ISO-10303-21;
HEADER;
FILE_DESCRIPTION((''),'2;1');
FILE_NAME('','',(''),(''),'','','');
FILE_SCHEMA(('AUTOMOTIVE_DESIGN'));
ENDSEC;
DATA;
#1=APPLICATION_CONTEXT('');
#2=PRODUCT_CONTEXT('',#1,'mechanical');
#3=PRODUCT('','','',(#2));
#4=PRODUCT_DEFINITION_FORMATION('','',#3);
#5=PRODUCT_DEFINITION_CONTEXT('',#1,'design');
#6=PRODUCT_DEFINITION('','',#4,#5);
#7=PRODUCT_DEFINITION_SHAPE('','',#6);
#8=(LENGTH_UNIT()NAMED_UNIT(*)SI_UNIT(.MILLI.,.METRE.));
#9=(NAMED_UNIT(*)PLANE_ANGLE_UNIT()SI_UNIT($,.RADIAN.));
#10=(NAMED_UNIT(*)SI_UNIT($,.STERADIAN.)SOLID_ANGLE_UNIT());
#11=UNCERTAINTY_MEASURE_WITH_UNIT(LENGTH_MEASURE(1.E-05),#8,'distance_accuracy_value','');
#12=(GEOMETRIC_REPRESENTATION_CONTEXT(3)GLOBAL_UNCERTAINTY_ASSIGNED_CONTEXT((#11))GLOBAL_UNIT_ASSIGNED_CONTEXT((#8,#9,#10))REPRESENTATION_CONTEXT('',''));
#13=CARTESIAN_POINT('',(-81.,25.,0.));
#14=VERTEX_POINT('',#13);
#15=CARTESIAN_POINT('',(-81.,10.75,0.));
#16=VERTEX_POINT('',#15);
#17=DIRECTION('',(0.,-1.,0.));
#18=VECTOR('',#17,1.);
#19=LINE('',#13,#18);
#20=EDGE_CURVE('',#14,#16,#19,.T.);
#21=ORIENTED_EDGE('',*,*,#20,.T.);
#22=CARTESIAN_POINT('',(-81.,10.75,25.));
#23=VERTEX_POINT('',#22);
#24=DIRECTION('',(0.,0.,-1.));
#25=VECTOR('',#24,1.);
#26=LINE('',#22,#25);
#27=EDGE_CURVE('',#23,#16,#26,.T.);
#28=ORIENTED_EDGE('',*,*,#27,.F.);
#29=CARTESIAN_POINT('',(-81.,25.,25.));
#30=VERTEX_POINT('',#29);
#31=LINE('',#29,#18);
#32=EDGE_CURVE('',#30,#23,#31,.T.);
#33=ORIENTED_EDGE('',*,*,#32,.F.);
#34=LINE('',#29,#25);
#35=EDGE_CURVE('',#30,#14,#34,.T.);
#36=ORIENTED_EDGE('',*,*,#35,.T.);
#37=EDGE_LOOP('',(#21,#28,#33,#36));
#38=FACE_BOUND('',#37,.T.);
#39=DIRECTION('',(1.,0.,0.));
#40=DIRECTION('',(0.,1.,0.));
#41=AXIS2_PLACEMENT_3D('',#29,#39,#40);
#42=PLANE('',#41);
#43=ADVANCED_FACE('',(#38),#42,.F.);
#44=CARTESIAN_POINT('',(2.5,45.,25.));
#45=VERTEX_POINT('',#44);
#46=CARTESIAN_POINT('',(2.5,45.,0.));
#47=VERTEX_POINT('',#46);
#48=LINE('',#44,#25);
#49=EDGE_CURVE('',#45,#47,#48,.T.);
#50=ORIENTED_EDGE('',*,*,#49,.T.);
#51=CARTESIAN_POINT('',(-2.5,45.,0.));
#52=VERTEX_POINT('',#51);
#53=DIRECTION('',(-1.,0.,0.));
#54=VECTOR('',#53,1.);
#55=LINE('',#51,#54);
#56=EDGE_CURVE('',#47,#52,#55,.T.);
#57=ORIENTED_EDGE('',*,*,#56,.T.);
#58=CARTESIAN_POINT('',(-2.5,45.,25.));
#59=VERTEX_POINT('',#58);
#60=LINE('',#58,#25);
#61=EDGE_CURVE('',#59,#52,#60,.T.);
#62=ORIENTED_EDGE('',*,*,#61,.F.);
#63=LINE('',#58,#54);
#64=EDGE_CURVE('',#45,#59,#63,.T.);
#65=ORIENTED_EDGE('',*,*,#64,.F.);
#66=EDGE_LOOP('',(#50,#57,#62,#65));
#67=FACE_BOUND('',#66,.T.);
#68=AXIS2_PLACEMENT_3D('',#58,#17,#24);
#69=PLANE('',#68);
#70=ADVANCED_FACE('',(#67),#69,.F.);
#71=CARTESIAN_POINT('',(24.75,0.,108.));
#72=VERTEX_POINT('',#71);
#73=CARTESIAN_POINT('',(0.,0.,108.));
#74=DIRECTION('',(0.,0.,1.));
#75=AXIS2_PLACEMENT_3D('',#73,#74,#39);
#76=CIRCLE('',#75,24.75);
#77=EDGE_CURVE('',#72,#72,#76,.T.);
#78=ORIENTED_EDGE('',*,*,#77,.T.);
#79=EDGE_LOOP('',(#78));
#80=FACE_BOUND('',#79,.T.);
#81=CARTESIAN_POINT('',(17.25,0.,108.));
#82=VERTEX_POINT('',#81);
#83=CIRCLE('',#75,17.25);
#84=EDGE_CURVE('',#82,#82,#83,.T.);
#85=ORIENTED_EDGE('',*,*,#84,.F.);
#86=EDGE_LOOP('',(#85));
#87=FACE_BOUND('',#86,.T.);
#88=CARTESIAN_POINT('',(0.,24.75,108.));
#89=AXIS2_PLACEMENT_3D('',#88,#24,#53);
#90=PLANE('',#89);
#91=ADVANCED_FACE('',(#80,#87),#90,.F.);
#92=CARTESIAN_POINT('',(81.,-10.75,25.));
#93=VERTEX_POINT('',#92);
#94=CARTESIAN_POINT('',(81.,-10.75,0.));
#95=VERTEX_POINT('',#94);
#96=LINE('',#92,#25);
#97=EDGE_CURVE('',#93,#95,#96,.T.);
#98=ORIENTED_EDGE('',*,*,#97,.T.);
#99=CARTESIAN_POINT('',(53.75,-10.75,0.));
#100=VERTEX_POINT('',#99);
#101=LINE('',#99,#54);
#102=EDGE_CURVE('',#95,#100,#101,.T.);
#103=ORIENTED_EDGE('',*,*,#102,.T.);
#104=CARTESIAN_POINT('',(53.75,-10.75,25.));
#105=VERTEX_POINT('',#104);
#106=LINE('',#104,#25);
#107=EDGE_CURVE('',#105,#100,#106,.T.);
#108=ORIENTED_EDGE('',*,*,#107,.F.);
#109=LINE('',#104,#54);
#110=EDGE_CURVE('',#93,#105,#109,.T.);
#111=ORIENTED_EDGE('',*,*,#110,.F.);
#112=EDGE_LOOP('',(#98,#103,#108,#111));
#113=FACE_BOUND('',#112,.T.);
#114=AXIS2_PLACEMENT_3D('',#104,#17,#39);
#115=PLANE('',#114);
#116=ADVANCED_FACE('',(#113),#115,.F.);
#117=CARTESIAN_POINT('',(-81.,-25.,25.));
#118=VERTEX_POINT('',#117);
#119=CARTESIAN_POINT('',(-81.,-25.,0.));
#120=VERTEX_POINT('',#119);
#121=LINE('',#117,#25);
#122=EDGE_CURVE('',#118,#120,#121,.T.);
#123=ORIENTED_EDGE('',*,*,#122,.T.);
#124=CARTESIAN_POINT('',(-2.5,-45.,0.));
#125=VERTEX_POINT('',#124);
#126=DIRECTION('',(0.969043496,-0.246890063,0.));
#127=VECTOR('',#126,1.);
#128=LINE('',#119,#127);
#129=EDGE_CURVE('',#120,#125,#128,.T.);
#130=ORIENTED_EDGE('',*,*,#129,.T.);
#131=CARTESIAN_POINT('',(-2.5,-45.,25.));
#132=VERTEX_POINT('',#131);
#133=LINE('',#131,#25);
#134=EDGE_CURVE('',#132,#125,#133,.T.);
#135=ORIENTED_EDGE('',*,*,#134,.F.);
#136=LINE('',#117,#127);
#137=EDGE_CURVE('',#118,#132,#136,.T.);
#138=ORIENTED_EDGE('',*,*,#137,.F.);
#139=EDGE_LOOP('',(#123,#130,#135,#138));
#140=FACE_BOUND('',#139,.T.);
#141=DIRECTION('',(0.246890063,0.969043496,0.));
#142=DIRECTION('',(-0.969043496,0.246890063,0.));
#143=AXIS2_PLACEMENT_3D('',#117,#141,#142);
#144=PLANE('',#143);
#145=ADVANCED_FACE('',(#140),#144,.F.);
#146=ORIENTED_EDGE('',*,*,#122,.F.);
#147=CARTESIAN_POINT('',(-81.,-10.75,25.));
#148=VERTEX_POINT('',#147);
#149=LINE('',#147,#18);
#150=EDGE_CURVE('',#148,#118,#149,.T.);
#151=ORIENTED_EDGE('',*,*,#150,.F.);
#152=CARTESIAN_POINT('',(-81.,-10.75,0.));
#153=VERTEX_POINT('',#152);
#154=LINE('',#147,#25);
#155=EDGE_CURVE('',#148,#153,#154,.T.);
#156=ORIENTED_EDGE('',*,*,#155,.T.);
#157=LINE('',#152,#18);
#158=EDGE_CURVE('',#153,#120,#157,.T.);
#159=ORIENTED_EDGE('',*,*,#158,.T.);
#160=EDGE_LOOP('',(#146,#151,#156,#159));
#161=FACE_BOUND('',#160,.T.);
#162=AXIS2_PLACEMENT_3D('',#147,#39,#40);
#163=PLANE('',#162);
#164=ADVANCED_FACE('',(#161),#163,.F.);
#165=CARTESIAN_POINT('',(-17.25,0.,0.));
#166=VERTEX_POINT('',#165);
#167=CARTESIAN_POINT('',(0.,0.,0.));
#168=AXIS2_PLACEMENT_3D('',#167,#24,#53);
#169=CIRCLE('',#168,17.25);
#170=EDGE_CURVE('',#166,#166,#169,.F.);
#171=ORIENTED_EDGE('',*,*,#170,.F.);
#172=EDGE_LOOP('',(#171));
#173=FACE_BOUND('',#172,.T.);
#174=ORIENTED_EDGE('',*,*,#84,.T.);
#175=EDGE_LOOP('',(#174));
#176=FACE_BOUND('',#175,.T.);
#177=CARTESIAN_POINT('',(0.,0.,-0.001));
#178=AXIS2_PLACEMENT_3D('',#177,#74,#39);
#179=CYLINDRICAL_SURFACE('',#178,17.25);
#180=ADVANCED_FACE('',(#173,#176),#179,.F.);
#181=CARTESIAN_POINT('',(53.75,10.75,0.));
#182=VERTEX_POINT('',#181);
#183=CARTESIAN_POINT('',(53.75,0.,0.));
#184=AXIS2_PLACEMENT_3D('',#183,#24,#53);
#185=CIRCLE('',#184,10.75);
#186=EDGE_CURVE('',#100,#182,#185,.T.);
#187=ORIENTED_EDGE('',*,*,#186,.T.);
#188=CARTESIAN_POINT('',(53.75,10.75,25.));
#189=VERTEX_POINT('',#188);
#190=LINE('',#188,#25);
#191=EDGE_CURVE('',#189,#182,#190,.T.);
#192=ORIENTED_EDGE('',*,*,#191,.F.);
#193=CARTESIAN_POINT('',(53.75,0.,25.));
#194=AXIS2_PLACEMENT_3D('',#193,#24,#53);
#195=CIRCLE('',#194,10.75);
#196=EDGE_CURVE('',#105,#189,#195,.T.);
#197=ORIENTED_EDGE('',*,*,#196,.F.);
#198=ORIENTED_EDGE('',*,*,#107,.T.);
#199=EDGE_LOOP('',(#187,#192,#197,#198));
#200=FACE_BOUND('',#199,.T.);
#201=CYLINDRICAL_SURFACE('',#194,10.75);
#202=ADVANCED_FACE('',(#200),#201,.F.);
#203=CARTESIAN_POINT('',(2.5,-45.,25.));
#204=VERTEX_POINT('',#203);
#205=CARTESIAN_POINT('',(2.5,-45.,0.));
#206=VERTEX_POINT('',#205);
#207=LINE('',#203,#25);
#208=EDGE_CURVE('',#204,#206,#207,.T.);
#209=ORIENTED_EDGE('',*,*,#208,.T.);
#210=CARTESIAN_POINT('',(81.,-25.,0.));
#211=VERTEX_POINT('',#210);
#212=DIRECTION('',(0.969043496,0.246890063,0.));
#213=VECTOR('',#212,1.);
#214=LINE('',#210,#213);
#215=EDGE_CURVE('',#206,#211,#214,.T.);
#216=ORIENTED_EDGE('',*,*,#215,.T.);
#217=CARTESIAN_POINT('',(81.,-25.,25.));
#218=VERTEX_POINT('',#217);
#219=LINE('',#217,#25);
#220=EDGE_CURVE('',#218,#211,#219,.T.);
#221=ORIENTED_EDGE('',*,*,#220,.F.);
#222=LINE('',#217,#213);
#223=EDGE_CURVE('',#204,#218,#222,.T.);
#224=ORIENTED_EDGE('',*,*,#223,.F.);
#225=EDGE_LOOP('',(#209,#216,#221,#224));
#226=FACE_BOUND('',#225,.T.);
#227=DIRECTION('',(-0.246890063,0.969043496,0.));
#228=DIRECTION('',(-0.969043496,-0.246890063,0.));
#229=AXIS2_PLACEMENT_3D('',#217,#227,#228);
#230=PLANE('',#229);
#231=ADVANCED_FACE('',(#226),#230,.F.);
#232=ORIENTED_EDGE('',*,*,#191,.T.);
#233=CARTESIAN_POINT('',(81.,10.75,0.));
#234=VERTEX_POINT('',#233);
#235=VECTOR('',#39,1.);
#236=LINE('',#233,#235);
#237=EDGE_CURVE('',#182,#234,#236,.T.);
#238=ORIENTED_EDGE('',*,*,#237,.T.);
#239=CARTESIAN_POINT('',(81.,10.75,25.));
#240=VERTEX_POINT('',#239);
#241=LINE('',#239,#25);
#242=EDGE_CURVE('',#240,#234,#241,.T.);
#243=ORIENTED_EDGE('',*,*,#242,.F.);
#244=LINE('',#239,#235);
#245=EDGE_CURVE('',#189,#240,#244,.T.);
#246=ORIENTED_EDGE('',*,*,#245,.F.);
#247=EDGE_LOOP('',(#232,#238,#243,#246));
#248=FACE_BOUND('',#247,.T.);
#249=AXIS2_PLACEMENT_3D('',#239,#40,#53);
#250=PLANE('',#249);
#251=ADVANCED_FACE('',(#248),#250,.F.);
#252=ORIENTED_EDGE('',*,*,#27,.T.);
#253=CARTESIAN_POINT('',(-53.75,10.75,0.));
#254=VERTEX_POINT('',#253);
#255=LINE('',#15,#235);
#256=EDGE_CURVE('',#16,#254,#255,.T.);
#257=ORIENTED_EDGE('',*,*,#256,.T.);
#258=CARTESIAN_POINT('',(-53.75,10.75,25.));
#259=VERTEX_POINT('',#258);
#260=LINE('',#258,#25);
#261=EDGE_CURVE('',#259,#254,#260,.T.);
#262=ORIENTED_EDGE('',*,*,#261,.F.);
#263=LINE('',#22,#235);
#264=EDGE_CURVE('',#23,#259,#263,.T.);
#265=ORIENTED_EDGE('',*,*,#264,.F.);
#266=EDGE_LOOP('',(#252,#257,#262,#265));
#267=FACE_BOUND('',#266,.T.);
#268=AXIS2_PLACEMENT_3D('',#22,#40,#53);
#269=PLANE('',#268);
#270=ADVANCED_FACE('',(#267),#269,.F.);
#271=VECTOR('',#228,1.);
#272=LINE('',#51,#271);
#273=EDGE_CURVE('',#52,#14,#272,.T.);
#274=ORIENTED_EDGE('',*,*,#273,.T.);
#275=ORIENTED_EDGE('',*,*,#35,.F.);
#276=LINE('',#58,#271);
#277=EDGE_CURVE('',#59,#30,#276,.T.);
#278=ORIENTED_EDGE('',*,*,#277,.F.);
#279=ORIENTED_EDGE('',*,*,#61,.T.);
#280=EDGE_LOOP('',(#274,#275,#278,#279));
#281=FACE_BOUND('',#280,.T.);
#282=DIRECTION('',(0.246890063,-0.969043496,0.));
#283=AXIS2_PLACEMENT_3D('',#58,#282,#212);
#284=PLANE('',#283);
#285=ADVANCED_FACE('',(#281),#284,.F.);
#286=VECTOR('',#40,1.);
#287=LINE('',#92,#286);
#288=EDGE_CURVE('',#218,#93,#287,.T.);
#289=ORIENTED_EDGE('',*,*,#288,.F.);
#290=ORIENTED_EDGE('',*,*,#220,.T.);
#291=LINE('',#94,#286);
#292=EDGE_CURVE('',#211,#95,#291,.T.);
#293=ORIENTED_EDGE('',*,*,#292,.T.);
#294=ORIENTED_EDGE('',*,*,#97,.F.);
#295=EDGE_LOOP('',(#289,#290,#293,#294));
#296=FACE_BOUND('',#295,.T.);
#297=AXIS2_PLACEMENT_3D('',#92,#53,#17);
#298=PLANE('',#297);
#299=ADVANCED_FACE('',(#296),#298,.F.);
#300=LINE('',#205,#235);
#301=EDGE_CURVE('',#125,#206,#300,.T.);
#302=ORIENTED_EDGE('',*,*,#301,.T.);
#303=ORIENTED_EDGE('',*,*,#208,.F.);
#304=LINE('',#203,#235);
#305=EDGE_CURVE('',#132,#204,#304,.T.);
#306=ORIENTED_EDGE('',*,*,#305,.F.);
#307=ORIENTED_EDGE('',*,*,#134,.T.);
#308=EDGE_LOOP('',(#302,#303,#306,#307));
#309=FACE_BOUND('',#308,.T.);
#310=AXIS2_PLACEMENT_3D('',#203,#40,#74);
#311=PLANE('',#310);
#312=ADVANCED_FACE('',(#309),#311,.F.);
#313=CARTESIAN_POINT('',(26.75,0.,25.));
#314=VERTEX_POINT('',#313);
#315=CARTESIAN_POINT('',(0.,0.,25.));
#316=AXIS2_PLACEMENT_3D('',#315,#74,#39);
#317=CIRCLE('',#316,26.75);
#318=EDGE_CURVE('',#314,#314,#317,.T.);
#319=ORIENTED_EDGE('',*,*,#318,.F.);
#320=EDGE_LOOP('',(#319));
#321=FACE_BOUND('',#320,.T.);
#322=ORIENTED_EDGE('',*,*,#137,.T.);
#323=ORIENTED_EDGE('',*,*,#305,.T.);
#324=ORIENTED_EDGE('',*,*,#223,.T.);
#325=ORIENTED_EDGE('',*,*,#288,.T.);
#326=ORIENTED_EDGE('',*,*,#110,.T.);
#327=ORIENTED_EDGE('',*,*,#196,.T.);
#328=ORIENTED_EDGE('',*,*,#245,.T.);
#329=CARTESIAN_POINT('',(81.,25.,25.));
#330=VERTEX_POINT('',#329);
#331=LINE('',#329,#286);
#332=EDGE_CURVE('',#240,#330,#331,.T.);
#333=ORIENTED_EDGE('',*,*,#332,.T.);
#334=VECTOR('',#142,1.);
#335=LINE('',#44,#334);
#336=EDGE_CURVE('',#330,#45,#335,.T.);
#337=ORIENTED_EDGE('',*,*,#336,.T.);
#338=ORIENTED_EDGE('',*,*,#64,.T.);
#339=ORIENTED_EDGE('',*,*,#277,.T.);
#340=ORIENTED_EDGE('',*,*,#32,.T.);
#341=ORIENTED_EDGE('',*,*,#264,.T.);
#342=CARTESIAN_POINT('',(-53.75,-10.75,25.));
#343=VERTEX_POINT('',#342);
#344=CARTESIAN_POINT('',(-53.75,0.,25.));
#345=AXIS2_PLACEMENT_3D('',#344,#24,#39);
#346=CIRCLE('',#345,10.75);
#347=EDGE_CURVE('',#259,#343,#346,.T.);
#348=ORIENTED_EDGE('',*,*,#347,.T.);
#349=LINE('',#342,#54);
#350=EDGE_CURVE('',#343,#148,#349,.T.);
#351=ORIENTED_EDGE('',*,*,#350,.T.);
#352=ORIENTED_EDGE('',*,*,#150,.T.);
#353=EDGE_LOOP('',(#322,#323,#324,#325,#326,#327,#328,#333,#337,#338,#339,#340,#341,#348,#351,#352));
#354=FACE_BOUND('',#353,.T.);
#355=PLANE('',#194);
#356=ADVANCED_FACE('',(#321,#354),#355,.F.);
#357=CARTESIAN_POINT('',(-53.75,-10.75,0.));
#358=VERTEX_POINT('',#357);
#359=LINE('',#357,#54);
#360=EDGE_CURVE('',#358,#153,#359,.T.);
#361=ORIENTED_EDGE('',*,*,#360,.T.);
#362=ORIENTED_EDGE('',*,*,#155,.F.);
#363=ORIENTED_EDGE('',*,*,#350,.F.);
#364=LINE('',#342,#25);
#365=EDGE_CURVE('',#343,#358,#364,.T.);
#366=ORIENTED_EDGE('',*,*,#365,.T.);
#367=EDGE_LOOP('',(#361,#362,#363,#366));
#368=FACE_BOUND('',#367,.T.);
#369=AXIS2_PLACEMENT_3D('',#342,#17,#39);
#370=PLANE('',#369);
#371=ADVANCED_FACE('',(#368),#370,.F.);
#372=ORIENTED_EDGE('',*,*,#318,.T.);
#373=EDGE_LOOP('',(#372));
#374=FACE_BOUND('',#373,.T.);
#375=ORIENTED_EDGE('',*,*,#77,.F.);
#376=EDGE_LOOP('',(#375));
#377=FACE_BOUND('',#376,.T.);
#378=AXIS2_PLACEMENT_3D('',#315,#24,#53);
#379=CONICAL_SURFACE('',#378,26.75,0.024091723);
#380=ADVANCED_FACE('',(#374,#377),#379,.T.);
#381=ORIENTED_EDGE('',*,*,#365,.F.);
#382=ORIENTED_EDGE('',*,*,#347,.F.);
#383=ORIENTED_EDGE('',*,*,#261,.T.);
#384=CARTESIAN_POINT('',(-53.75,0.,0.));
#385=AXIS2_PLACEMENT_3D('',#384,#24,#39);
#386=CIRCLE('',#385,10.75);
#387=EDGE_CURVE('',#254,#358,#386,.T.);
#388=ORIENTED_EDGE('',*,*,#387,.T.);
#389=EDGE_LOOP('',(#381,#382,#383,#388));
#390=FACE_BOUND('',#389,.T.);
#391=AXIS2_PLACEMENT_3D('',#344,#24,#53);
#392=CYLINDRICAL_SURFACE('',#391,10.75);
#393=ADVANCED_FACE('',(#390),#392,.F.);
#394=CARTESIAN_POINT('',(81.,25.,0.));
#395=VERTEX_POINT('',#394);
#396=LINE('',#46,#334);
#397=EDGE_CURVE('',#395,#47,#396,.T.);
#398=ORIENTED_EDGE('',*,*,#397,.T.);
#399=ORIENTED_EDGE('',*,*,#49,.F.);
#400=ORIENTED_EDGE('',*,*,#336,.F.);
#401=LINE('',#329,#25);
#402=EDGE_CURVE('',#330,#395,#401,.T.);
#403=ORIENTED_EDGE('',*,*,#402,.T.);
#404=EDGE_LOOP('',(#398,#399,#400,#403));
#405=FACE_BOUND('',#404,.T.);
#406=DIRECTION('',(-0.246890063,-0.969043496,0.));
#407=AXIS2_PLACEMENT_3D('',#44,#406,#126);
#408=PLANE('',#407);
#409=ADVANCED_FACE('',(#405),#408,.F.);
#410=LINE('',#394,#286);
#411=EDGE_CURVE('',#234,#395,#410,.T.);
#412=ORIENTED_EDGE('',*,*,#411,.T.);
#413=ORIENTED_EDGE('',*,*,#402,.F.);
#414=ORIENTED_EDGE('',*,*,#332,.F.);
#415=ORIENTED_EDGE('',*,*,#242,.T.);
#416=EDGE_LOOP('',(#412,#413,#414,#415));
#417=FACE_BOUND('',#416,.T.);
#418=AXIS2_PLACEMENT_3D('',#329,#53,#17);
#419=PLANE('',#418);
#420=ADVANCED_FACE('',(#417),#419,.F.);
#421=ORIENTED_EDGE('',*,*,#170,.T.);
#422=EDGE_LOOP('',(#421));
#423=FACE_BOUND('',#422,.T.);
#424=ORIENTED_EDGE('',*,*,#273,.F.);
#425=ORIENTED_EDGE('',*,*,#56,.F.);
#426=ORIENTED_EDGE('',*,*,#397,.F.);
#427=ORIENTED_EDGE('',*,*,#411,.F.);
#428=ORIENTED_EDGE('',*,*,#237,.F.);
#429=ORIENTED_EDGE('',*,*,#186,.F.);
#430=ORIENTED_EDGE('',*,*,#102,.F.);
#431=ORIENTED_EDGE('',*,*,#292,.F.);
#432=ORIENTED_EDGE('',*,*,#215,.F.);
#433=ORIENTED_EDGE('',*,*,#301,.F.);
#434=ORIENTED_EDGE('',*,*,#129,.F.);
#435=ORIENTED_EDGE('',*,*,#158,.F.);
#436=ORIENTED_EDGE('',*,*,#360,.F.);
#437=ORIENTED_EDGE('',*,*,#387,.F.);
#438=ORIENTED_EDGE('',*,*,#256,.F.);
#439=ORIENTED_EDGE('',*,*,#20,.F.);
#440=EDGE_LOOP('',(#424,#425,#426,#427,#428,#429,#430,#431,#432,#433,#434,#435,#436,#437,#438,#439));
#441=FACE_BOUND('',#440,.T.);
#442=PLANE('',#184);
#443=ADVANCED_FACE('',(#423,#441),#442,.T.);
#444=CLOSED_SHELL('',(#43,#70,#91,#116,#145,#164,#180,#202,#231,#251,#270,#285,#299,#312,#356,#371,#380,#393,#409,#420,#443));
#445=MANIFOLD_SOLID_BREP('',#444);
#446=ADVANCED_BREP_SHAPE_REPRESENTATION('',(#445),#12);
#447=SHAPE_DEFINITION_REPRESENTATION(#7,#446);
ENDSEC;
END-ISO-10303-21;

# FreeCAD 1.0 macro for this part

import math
import FreeCAD as App
import Part
import Sketcher


def add_polygon(sketch, points):
    """Adds a closed chain of lines whose ends are joined by coincident constraints."""
    first, n = sketch.GeometryCount, len(points)
    for a, b in zip(points, points[1:] + points[:1]):
        sketch.addGeometry(Part.LineSegment(App.Vector(*a, 0), App.Vector(*b, 0)), False)
    for i in range(n):
        sketch.addConstraint(Sketcher.Constraint("Coincident", first + i, 2, first + (i + 1) % n, 1))

doc = App.newDocument("Part")
body = doc.addObject("PartDesign::Body", "Body")

sketch1 = body.newObject("Sketcher::SketchObject", "Sketch")
sketch1.AttachmentSupport = (doc.getObject("XY_Plane"), [""])
sketch1.MapMode = "FlatFace"
sketch1.addGeometry(Part.LineSegment(App.Vector(2, 45, 0), App.Vector(-2, 45, 0)), False)
sketch1.addGeometry(Part.LineSegment(App.Vector(-2, 45, 0), App.Vector(-81, 25, 0)), False)
sketch1.addGeometry(Part.LineSegment(App.Vector(-81, 25, 0), App.Vector(-81, 11, 0)), False)
sketch1.addGeometry(Part.LineSegment(App.Vector(-81, 11, 0), App.Vector(-54, 11, 0)), False)
sketch1.addGeometry(Part.ArcOfCircle(Part.Circle(App.Vector(-54, 0, 0), App.Vector(0, 0, 1), 11), math.radians(-90), math.radians(90)), False)
sketch1.addGeometry(Part.LineSegment(App.Vector(-54, -11, 0), App.Vector(-81, -11, 0)), False)
sketch1.addGeometry(Part.LineSegment(App.Vector(-81, -11, 0), App.Vector(-81, -25, 0)), False)
sketch1.addGeometry(Part.LineSegment(App.Vector(-81, -25, 0), App.Vector(-2, -45, 0)), False)
sketch1.addGeometry(Part.LineSegment(App.Vector(-2, -45, 0), App.Vector(2, -45, 0)), False)
sketch1.addGeometry(Part.LineSegment(App.Vector(2, -45, 0), App.Vector(81, -25, 0)), False)
sketch1.addGeometry(Part.LineSegment(App.Vector(81, -25, 0), App.Vector(81, -11, 0)), False)
sketch1.addGeometry(Part.LineSegment(App.Vector(81, -11, 0), App.Vector(54, -11, 0)), False)
sketch1.addGeometry(Part.ArcOfCircle(Part.Circle(App.Vector(54, 0, 0), App.Vector(0, 0, 1), 11), math.radians(90), math.radians(270)), False)
sketch1.addGeometry(Part.LineSegment(App.Vector(54, 11, 0), App.Vector(81, 11, 0)), False)
sketch1.addGeometry(Part.LineSegment(App.Vector(81, 11, 0), App.Vector(81, 25, 0)), False)
sketch1.addGeometry(Part.LineSegment(App.Vector(81, 25, 0), App.Vector(2, 45, 0)), False)
sketch1.addConstraint(Sketcher.Constraint("Coincident", 0, 2, 1, 1))
sketch1.addConstraint(Sketcher.Constraint("Coincident", 1, 2, 2, 1))
sketch1.addConstraint(Sketcher.Constraint("Coincident", 2, 2, 3, 1))
sketch1.addConstraint(Sketcher.Constraint("Tangent", 3, 2, 4, 2))
sketch1.addConstraint(Sketcher.Constraint("Tangent", 4, 1, 5, 1))
sketch1.addConstraint(Sketcher.Constraint("Coincident", 5, 2, 6, 1))
sketch1.addConstraint(Sketcher.Constraint("Coincident", 6, 2, 7, 1))
sketch1.addConstraint(Sketcher.Constraint("Coincident", 7, 2, 8, 1))
sketch1.addConstraint(Sketcher.Constraint("Coincident", 8, 2, 9, 1))
sketch1.addConstraint(Sketcher.Constraint("Coincident", 9, 2, 10, 1))
sketch1.addConstraint(Sketcher.Constraint("Coincident", 10, 2, 11, 1))
sketch1.addConstraint(Sketcher.Constraint("Tangent", 11, 2, 12, 2))
sketch1.addConstraint(Sketcher.Constraint("Tangent", 12, 1, 13, 1))
sketch1.addConstraint(Sketcher.Constraint("Coincident", 13, 2, 14, 1))
sketch1.addConstraint(Sketcher.Constraint("Coincident", 14, 2, 15, 1))
sketch1.addConstraint(Sketcher.Constraint("Coincident", 15, 2, 0, 1))
sketch1.addConstraint(Sketcher.Constraint("Horizontal", 0))
sketch1.addConstraint(Sketcher.Constraint("Vertical", 2))
sketch1.addConstraint(Sketcher.Constraint("Horizontal", 3))
sketch1.addConstraint(Sketcher.Constraint("Horizontal", 5))
sketch1.addConstraint(Sketcher.Constraint("Vertical", 6))
sketch1.addConstraint(Sketcher.Constraint("Horizontal", 8))
sketch1.addConstraint(Sketcher.Constraint("Vertical", 10))
sketch1.addConstraint(Sketcher.Constraint("Horizontal", 11))
sketch1.addConstraint(Sketcher.Constraint("Horizontal", 13))
sketch1.addConstraint(Sketcher.Constraint("Vertical", 14))
sketch1.addConstraint(Sketcher.Constraint("Equal", 4, 12))
sketch1.addConstraint(Sketcher.Constraint("Symmetric", 4, 3, 12, 3, -1, 1))
sketch1.addConstraint(Sketcher.Constraint("Symmetric", 0, 2, 8, 2, -1, 1))
sketch1.addConstraint(Sketcher.Constraint("Symmetric", 1, 2, 9, 2, -1, 1))
sketch1.addConstraint(Sketcher.Constraint("Symmetric", 6, 2, 14, 2, -1, 1))
sketch1.addConstraint(Sketcher.Constraint("Symmetric", 6, 2, 9, 2, -2))
sketch1.addConstraint(Sketcher.Constraint("PointOnObject", 4, 3, -1))
sketch1.addConstraint(Sketcher.Constraint("Parallel", 7, 15))
sketch1.addConstraint(Sketcher.Constraint("Vertical", 0, 2, 7, 2))
sketch1.addConstraint(Sketcher.Constraint("DistanceX", 0, 2, 0, 1, 5.0))
sketch1.addConstraint(Sketcher.Constraint("Radius", 4, 10.75))
sketch1.addConstraint(Sketcher.Constraint("DistanceY", -1, 1, 0, 2, 45.0))
sketch1.addConstraint(Sketcher.Constraint("DistanceX", 1, 2, -1, 1, 81.0))
sketch1.addConstraint(Sketcher.Constraint("DistanceY", -1, 1, 1, 2, 25.0))
sketch1.addConstraint(Sketcher.Constraint("DistanceX", 3, 1, 3, 2, 27.25))
pad1 = body.newObject("PartDesign::Pad", "Pad")
pad1.Profile = sketch1
pad1.Length = 25

sketch2 = body.newObject("Sketcher::SketchObject", "Sketch001")
sketch2.AttachmentSupport = (doc.getObject("YZ_Plane"), [""])
sketch2.MapMode = "FlatFace"
add_polygon(sketch2, [(27, 25), (25, 108), (0, 108), (0, 25)])
sketch2.addConstraint(Sketcher.Constraint("Horizontal", 1))
sketch2.addConstraint(Sketcher.Constraint("Vertical", 2))
sketch2.addConstraint(Sketcher.Constraint("Horizontal", 3))
sketch2.addConstraint(Sketcher.Constraint("PointOnObject", 1, 2, -2))
sketch2.addConstraint(Sketcher.Constraint("DistanceY", 2, 2, 2, 1, 83.0))
sketch2.addConstraint(Sketcher.Constraint("DistanceY", -1, 1, 0, 2, 108.0))
sketch2.addConstraint(Sketcher.Constraint("DistanceX", 0, 2, 3, 2, 2.0))
sketch2.addConstraint(Sketcher.Constraint("DistanceX", 1, 2, 1, 1, 24.75))
revolution = body.newObject("PartDesign::Revolution", "Revolution")
revolution.Profile = sketch2
revolution.ReferenceAxis = (sketch2, ["V_Axis"])
revolution.Angle = 360

sketch3 = body.newObject("Sketcher::SketchObject", "Sketch002")
sketch3.AttachmentSupport = (doc.getObject("XY_Plane"), [""])
sketch3.MapMode = "FlatFace"
sketch3.AttachmentOffset = App.Placement(App.Vector(0, 0, 108), App.Rotation())
sketch3.addGeometry(Part.Circle(App.Vector(0, 0, 0), App.Vector(0, 0, 1), 17), False)
sketch3.addConstraint(Sketcher.Constraint("Coincident", 0, 3, -1, 1))
sketch3.addConstraint(Sketcher.Constraint("Diameter", 0, 34.5))
pocket1 = body.newObject("PartDesign::Pocket", "Pocket")
pocket1.Profile = sketch3
pocket1.Type = "UpToFirst"

doc.recompute()
